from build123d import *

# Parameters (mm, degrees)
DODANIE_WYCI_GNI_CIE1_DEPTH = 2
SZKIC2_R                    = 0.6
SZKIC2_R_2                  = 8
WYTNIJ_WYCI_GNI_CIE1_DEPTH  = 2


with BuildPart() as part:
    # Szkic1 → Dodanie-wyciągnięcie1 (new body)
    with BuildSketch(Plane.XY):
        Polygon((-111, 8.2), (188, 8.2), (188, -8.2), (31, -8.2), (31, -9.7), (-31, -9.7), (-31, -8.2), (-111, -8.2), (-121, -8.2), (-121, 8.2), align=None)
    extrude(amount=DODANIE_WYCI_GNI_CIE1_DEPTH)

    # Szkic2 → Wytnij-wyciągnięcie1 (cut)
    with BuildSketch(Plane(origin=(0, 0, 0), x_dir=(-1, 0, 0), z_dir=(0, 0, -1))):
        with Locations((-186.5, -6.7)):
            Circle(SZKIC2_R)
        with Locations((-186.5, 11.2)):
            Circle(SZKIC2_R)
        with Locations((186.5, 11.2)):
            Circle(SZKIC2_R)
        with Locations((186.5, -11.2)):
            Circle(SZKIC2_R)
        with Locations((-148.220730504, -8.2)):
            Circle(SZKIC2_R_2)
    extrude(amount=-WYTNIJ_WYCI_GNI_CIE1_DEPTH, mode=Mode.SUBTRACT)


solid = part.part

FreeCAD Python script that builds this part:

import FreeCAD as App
import Part
import Sketcher

V = App.Vector

doc = App.newDocument("Part")
body = doc.addObject("PartDesign::Body", "Body")

# Sketch on XY plane
sketch1 = body.newObject("Sketcher::SketchObject", "Sketch")
sketch1.AttachmentSupport = (doc.getObject("XY_Plane"), [""])
sketch1.MapMode = "FlatFace"
sketch1.addGeometry([
    Part.LineSegment(V(188, 8.2, 0), V(-121, 8.2, 0)),  # 0
    Part.LineSegment(V(-121, 8.2, 0), V(-121, -8.2, 0)),  # 1
    Part.LineSegment(V(-121, -8.2, 0), V(-31, -8.2, 0)),  # 2
    Part.LineSegment(V(-31, -8.2, 0), V(-31, -9.7, 0)),  # 3
    Part.LineSegment(V(-31, -9.7, 0), V(31, -9.7, 0)),  # 4
    Part.LineSegment(V(31, -9.7, 0), V(31, -8.2, 0)),  # 5
    Part.LineSegment(V(31, -8.2, 0), V(188, -8.2, 0)),  # 6
    Part.LineSegment(V(188, -8.2, 0), V(188, 8.2, 0)),  # 7
], False)
sketch1.addConstraint([
    Sketcher.Constraint("Coincident", 0, 2, 1, 1),
    Sketcher.Constraint("Coincident", 1, 2, 2, 1),
    Sketcher.Constraint("Coincident", 2, 2, 3, 1),
    Sketcher.Constraint("Coincident", 3, 2, 4, 1),
    Sketcher.Constraint("Coincident", 4, 2, 5, 1),
    Sketcher.Constraint("Coincident", 5, 2, 6, 1),
    Sketcher.Constraint("Coincident", 6, 2, 7, 1),
    Sketcher.Constraint("Coincident", 7, 2, 0, 1),
    Sketcher.Constraint("Horizontal", 0),
    Sketcher.Constraint("Vertical", 1),
    Sketcher.Constraint("Horizontal", 2),
    Sketcher.Constraint("Vertical", 3),
    Sketcher.Constraint("Horizontal", 4),
    Sketcher.Constraint("Vertical", 5),
    Sketcher.Constraint("Horizontal", 6),
    Sketcher.Constraint("Vertical", 7),
    Sketcher.Constraint("Symmetric", 2, 2, 5, 2, -2),
    Sketcher.Constraint("DistanceX", 0, 2, 0, 1, 309.0),
    Sketcher.Constraint("DistanceX", 2, 1, 2, 2, 90.0),
    Sketcher.Constraint("DistanceX", 4, 1, 4, 2, 62.0),
    Sketcher.Constraint("DistanceY", 1, 2, 1, 1, 16.4),
    Sketcher.Constraint("DistanceY", 3, 2, 3, 1, 1.5),
    Sketcher.Constraint("DistanceY", -1, 1, 0, 2, 8.2),
])
pad1 = body.newObject("PartDesign::Pad", "Pad")
pad1.Profile = sketch1
pad1.Length = 2

# Sketch on XY plane
sketch2 = body.newObject("Sketcher::SketchObject", "Sketch001")
sketch2.AttachmentSupport = (doc.getObject("XY_Plane"), [""])
sketch2.MapMode = "FlatFace"
sketch2.addGeometry([
    Part.Circle(V(186.5, -6.7, 0), V(0, 0, 1), 0.6),  # 0
    Part.Circle(V(186.5, 11.2, 0), V(0, 0, 1), 0.6),  # 1
    Part.Circle(V(-186.5, 11.2, 0), V(0, 0, 1), 0.6),  # 2
    Part.Circle(V(-186.5, -11.2, 0), V(0, 0, 1), 0.6),  # 3
    Part.Circle(V(148.2, -8.2, 0), V(0, 0, 1), 8),  # 4
], False)
sketch2.addConstraint([
    Sketcher.Constraint("Equal", 0, 1),
    Sketcher.Constraint("Equal", 1, 2),
    Sketcher.Constraint("Equal", 2, 3),
    Sketcher.Constraint("Symmetric", 1, 3, 3, 3, -1, 1),
    Sketcher.Constraint("Symmetric", 1, 3, 2, 3, -2),
    Sketcher.Constraint("Vertical", 0, 3, 1, 3),
    Sketcher.Constraint("Diameter", 4, 16.0),
    Sketcher.Constraint("Diameter", 0, 1.2),
    Sketcher.Constraint("DistanceX", 2, 3, 1, 3, 373.0),
    Sketcher.Constraint("DistanceY", 3, 3, 4, 3, 3.0),
    Sketcher.Constraint("DistanceY", 0, 3, -1, 1, 6.7),
    Sketcher.Constraint("DistanceY", -1, 1, 1, 3, 11.2),
    Sketcher.Constraint("DistanceX", -1, 1, 4, 3, 148.220731),
])
pocket1 = body.newObject("PartDesign::Pocket", "Pocket")
pocket1.Profile = sketch2
pocket1.Length = 2
pocket1.Reversed = True

doc.recompute()
